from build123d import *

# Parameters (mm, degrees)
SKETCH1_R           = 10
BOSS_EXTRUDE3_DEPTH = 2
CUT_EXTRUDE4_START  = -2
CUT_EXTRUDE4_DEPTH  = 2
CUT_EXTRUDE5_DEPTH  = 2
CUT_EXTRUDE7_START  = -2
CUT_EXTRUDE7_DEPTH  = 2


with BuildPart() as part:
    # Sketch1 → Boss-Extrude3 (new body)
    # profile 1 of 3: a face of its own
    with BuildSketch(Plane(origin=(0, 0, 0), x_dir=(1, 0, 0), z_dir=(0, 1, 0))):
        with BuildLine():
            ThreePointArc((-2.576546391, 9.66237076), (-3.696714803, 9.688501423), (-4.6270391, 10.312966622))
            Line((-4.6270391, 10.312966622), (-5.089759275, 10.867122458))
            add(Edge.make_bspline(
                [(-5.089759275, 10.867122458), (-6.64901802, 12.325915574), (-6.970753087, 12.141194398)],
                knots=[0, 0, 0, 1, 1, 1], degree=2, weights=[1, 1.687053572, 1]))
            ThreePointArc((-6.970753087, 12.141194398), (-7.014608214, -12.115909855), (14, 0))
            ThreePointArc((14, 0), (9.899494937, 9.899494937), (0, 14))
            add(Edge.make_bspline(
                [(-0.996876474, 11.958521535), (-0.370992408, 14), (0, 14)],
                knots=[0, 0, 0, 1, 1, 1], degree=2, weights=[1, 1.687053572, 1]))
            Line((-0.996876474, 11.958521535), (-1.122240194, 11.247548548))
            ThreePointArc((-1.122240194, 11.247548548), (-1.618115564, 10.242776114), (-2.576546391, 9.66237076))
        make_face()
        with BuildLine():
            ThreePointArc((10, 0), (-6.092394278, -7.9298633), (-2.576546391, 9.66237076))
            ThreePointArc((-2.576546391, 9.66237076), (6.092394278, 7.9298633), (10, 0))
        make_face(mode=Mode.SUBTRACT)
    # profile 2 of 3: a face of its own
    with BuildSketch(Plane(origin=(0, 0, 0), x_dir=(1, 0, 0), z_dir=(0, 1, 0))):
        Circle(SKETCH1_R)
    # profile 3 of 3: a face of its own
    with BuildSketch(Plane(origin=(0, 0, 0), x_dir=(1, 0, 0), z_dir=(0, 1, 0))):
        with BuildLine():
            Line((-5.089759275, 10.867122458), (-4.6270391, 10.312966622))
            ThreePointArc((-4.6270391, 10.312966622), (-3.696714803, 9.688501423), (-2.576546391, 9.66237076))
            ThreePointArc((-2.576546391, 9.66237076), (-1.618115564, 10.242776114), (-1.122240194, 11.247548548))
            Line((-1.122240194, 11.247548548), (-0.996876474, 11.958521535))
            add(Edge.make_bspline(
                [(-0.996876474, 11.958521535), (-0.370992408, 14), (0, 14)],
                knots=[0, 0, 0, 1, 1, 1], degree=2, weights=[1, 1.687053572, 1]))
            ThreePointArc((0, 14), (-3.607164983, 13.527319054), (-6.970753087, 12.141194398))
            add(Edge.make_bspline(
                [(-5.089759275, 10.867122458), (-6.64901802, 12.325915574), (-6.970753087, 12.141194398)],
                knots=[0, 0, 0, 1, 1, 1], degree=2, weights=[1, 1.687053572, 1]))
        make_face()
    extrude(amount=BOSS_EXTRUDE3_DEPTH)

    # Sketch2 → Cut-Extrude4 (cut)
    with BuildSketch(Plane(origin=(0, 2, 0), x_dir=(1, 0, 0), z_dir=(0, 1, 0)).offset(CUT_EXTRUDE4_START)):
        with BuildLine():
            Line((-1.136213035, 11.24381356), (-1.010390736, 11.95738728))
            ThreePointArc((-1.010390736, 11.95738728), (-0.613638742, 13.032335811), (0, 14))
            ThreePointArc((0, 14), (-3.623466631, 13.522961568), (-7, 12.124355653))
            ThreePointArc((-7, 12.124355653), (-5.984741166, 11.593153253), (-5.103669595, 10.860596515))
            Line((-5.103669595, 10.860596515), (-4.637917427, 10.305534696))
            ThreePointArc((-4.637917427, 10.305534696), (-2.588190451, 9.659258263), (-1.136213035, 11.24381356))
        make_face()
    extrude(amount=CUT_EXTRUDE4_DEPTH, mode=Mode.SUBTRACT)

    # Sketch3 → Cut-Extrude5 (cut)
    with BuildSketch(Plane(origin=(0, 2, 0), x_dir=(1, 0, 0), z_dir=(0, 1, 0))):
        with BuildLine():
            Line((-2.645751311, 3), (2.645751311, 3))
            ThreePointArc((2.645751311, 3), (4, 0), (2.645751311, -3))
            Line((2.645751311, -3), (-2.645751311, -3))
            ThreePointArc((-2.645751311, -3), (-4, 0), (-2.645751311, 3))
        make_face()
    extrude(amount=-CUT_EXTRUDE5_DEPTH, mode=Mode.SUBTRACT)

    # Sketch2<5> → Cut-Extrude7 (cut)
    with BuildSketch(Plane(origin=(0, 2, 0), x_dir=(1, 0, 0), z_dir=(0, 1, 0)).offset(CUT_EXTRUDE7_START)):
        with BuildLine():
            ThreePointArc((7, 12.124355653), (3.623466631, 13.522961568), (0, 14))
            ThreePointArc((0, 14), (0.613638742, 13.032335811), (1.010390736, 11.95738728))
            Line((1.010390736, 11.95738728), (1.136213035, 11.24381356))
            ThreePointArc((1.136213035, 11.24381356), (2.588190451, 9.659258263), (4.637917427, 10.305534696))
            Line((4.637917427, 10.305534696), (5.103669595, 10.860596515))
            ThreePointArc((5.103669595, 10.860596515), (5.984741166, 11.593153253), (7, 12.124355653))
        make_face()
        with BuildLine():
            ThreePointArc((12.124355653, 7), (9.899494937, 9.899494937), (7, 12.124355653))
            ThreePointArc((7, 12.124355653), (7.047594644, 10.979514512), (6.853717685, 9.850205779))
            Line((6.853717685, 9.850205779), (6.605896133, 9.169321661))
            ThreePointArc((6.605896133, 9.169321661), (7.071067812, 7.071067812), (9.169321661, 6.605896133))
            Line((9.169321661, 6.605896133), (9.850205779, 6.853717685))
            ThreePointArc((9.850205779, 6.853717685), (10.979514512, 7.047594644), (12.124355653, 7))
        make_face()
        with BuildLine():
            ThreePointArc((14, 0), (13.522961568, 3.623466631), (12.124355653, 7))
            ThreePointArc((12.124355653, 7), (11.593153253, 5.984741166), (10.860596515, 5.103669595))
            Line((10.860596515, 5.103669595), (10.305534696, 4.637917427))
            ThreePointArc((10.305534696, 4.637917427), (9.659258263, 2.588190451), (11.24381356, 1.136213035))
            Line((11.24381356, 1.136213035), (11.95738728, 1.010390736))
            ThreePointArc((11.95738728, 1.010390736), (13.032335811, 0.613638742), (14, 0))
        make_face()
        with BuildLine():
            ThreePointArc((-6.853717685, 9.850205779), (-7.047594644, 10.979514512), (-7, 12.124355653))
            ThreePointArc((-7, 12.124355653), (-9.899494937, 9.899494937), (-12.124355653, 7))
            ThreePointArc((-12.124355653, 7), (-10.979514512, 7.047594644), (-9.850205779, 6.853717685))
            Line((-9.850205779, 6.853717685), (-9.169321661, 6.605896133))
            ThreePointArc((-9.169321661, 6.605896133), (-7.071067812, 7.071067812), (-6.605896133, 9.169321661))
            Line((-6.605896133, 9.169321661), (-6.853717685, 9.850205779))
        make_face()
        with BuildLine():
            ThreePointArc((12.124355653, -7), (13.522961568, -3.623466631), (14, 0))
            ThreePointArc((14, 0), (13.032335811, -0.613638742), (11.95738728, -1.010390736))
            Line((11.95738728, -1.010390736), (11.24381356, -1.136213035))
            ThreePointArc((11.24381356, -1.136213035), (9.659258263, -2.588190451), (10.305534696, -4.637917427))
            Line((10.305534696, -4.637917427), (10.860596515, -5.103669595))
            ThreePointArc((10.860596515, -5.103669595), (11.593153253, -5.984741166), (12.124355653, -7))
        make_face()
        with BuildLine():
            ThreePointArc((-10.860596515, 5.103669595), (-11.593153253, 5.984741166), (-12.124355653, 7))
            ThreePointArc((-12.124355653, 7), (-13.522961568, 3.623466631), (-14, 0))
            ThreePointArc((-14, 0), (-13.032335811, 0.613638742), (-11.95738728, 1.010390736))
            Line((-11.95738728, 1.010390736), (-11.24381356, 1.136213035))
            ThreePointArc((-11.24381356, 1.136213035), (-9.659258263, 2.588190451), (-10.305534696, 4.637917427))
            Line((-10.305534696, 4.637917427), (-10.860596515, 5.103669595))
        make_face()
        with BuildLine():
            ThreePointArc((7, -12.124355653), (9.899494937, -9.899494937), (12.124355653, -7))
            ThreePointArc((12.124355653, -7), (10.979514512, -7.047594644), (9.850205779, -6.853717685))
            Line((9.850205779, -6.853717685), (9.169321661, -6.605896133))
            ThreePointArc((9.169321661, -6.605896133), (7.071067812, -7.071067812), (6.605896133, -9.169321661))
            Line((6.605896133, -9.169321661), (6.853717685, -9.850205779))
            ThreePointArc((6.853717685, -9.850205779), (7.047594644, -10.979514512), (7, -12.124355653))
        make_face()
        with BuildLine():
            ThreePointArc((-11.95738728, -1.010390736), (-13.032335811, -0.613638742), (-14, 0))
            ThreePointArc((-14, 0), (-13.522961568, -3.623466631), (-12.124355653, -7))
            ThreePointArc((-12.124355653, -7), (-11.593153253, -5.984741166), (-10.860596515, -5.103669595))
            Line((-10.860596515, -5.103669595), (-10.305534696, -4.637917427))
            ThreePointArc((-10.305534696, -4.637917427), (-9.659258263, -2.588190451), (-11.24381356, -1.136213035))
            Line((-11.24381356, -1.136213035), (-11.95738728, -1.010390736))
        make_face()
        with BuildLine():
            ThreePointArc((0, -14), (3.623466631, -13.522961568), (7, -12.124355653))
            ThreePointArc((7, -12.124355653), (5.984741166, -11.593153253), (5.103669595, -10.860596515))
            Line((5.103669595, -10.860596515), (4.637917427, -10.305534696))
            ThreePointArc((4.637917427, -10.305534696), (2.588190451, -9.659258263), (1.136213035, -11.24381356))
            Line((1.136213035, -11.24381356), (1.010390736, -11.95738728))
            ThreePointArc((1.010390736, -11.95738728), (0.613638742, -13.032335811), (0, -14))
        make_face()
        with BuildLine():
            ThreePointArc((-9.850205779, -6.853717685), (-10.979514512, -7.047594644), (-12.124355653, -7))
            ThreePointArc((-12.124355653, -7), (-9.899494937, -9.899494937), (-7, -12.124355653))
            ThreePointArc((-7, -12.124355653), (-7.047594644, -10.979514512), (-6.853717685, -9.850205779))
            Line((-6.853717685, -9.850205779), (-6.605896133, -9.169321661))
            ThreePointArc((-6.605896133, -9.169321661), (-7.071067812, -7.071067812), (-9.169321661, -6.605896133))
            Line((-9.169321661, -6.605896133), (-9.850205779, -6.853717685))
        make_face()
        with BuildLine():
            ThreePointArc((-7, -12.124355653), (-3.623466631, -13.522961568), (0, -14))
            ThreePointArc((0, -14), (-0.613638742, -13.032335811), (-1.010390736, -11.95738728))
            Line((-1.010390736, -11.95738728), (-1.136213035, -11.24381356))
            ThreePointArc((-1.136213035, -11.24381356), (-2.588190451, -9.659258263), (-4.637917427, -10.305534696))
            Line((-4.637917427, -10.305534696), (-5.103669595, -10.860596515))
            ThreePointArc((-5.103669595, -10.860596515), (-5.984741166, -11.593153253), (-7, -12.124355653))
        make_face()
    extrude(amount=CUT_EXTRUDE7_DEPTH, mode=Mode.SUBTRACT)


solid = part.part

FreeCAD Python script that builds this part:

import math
import FreeCAD as App
import Part
import Sketcher
from FreeCAD import Vector
Q = App.Units.Quantity

doc = App.newDocument("Part")
params = doc.addObject("Spreadsheet::Sheet", "Params")
for row, (alias, value) in enumerate([
    ("sketch1_radius", "14 mm"),
    ("pad1_length", "2 mm"),
    ("sketch2_radius", "14 mm"),
    ("sketch2_radius2", "2 mm"),
    ("pocket1_length", "2 mm"),
    ("sketch3_radius", "4 mm"),
    ("pocket2_length", "2 mm"),
    ("sketch4_radius", "14 mm"),
    ("sketch4_radius2", "2 mm"),
    ("pocket3_length", "2 mm"),
], start=1):
    params.set(f"A{row}", alias)
    params.set(f"B{row}", "=" + value)
    params.setAlias(f"B{row}", alias)

body = doc.addObject("PartDesign::Body", "Body")

# Sketch on XZ plane
sketch1 = doc.addObject("Sketcher::SketchObject", "Sketch")
body.addObject(sketch1)
sketch1.AttachmentSupport = (doc.XZ_Plane, [""])
sketch1.MapMode = "FlatFace"
sketch1.addGeometry(Part.ArcOfCircle(Part.Circle(Vector(0, 0, 0), Vector(0, 0, 1), 14), math.radians(-90), math.radians(0)), False)
sketch1.addGeometry(Part.ArcOfCircle(Part.Circle(Vector(0, 0, 0), Vector(0, 0, 1), 14), math.radians(-119.861885), math.radians(-90)), False)
sketch1.addGeometry(Part.ArcOfCircle(Part.Circle(Vector(0, 0, 0), Vector(0, 0, 1), 14), math.radians(0), math.radians(240.138115)), False)
sketch1.addConstraint(Sketcher.Constraint("Tangent", 0, 1, 1, 2))
sketch1.addConstraint(Sketcher.Constraint("Tangent", 1, 1, 2, 2))
sketch1.addConstraint(Sketcher.Constraint("Tangent", 2, 1, 0, 2))
sketch1.addConstraint(Sketcher.Constraint("Coincident", 0, 3, -1, 1))
sketch1.addConstraint(Sketcher.Constraint("PointOnObject", 0, 1, -2))
sketch1.addConstraint(Sketcher.Constraint("PointOnObject", 2, 1, -1))
sketch1.addConstraint(Sketcher.Constraint("Radius", 0, Q("14 mm")))
sketch1.addConstraint(Sketcher.Constraint("DistanceX", 1, 1, -1, 1, Q("6.970753 mm")))
sketch1.setExpression("Constraints[6]", "Params.sketch1_radius")
pad1 = doc.addObject("PartDesign::Pad", "Pad")
body.addObject(pad1)
pad1.Profile = sketch1
pad1.setExpression("Length", "Params.pad1_length")
pad1.Reversed = True

# Sketch on XZ plane
sketch2 = doc.addObject("Sketcher::SketchObject", "Sketch001")
body.addObject(sketch2)
sketch2.AttachmentSupport = (doc.XZ_Plane, [""])
sketch2.MapMode = "FlatFace"
sketch2.addGeometry(Part.LineSegment(Vector(-1.136213, -11.243814, 0), Vector(-1.010391, -11.957387, 0)), False)
sketch2.addGeometry(Part.ArcOfCircle(Part.Circle(Vector(4.249852, -10.626581, 0), Vector(0, 0, 1), 5.425974), math.radians(-165.802452), math.radians(-141.55839)), False)
sketch2.addGeometry(Part.ArcOfCircle(Part.Circle(Vector(0, 0, 0), Vector(0, 0, 1), 14), math.radians(-120), math.radians(-90)), False)
sketch2.addGeometry(Part.ArcOfCircle(Part.Circle(Vector(-8.99377, -7.077963, 0), Vector(0, 0, 1), 5.425974), math.radians(-68.44161), math.radians(-44.197548)), False)
sketch2.addGeometry(Part.LineSegment(Vector(-5.10367, -10.860597, 0), Vector(-4.637917, -10.305535, 0)), False)
sketch2.addGeometry(Part.ArcOfCircle(Part.Circle(Vector(-3.105829, -11.59111, 0), Vector(0, 0, 1), 2), math.radians(10), math.radians(140)), False)
sketch2.addConstraint(Sketcher.Constraint("Coincident", 0, 2, 1, 1))
sketch2.addConstraint(Sketcher.Constraint("Coincident", 1, 2, 2, 2))
sketch2.addConstraint(Sketcher.Constraint("Coincident", 2, 1, 3, 1))
sketch2.addConstraint(Sketcher.Constraint("Coincident", 3, 2, 4, 1))
sketch2.addConstraint(Sketcher.Constraint("Tangent", 4, 2, 5, 2))
sketch2.addConstraint(Sketcher.Constraint("Tangent", 5, 1, 0, 1))
sketch2.addConstraint(Sketcher.Constraint("Coincident", 2, 3, -1, 1))
sketch2.addConstraint(Sketcher.Constraint("Equal", 1, 3))
sketch2.addConstraint(Sketcher.Constraint("PointOnObject", 1, 2, -2))
sketch2.addConstraint(Sketcher.Constraint("Equal", 0, 4))
sketch2.addConstraint(Sketcher.Constraint("Radius", 2, Q("14 mm")))
sketch2.addConstraint(Sketcher.Constraint("Radius", 5, Q("2 mm")))
sketch2.addConstraint(Sketcher.Constraint("Angle", 0, Q("-80 deg")))
sketch2.addConstraint(Sketcher.Constraint("Angle", 4, Q("50 deg")))
sketch2.addConstraint(Sketcher.Constraint("DistanceX", 2, 1, -1, 1, Q("7 mm")))
sketch2.addConstraint(Sketcher.Constraint("Radius", 1, Q("5.425974 mm")))
sketch2.addConstraint(Sketcher.Constraint("DistanceX", 3, 3, 3, 2, Q("3.8901 mm")))
sketch2.addConstraint(Sketcher.Constraint("Distance", 0, Q("0.724582 mm")))
sketch2.addConstraint(Sketcher.Constraint("DistanceX", -1, 1, 1, 3, Q("4.249852 mm")))
sketch2.setExpression("Constraints[10]", "Params.sketch2_radius")
sketch2.setExpression("Constraints[11]", "Params.sketch2_radius2")
pocket1 = doc.addObject("PartDesign::Pocket", "Pocket")
body.addObject(pocket1)
pocket1.Profile = sketch2
pocket1.setExpression("Length", "Params.pocket1_length")

# Sketch on XZ plane
sketch3 = doc.addObject("Sketcher::SketchObject", "Sketch002")
body.addObject(sketch3)
sketch3.AttachmentSupport = (doc.XZ_Plane, [""])
sketch3.MapMode = "FlatFace"
sketch3.AttachmentOffset = App.Placement(Vector(0, 0, -2), App.Rotation())
sketch3.addGeometry(Part.LineSegment(Vector(2.645751, -3, 0), Vector(-2.645751, -3, 0)), False)
sketch3.addGeometry(Part.ArcOfCircle(Part.Circle(Vector(0, 0, 0), Vector(0, 0, 1), 4), math.radians(131.409622), math.radians(228.590378)), False)
sketch3.addGeometry(Part.LineSegment(Vector(-2.645751, 3, 0), Vector(2.645751, 3, 0)), False)
sketch3.addGeometry(Part.ArcOfCircle(Part.Circle(Vector(0, 0, 0), Vector(0, 0, 1), 4), math.radians(-48.590378), math.radians(48.590378)), False)
sketch3.addConstraint(Sketcher.Constraint("Coincident", 0, 2, 1, 2))
sketch3.addConstraint(Sketcher.Constraint("Coincident", 1, 1, 2, 1))
sketch3.addConstraint(Sketcher.Constraint("Coincident", 2, 2, 3, 2))
sketch3.addConstraint(Sketcher.Constraint("Coincident", 3, 1, 0, 1))
sketch3.addConstraint(Sketcher.Constraint("Horizontal", 0))
sketch3.addConstraint(Sketcher.Constraint("Horizontal", 2))
sketch3.addConstraint(Sketcher.Constraint("Coincident", 1, 3, -1, 1))
sketch3.addConstraint(Sketcher.Constraint("Coincident", 3, 3, -1, 1))
sketch3.addConstraint(Sketcher.Constraint("Equal", 1, 3))
sketch3.addConstraint(Sketcher.Constraint("Vertical", 0, 2, 1, 1))
sketch3.addConstraint(Sketcher.Constraint("Radius", 1, Q("4 mm")))
sketch3.addConstraint(Sketcher.Constraint("DistanceY", 0, 2, -1, 1, Q("3 mm")))
sketch3.setExpression("Constraints[10]", "Params.sketch3_radius")
pocket2 = doc.addObject("PartDesign::Pocket", "Pocket001")
body.addObject(pocket2)
pocket2.Profile = sketch3
pocket2.setExpression("Length", "Params.pocket2_length")
pocket2.Reversed = True

# Sketch on XZ plane
sketch4 = doc.addObject("Sketcher::SketchObject", "Sketch003")
body.addObject(sketch4)
sketch4.AttachmentSupport = (doc.XZ_Plane, [""])
sketch4.MapMode = "FlatFace"
sketch4.addGeometry(Part.ArcOfCircle(Part.Circle(Vector(0, 0, 0), Vector(0, 0, 1), 14), math.radians(-90), math.radians(-60)), False)
sketch4.addGeometry(Part.ArcOfCircle(Part.Circle(Vector(-4.249852, -10.626581, 0), Vector(0, 0, 1), 5.425974), math.radians(-38.44161), math.radians(-14.197548)), False)
sketch4.addGeometry(Part.LineSegment(Vector(1.010391, -11.957387, 0), Vector(1.136213, -11.243814, 0)), False)
sketch4.addGeometry(Part.ArcOfCircle(Part.Circle(Vector(3.105829, -11.59111, 0), Vector(0, 0, 1), 2), math.radians(40), math.radians(170)), False)
sketch4.addGeometry(Part.LineSegment(Vector(4.637917, -10.305535, 0), Vector(5.10367, -10.860597, 0)), False)
sketch4.addGeometry(Part.ArcOfCircle(Part.Circle(Vector(8.99377, -7.077963, 0), Vector(0, 0, 1), 5.425974), math.radians(-135.802452), math.radians(-111.55839)), False)
sketch4.addGeometry(Part.ArcOfCircle(Part.Circle(Vector(0, 0, 0), Vector(0, 0, 1), 14), math.radians(-60), math.radians(-30)), False)
sketch4.addGeometry(Part.ArcOfCircle(Part.Circle(Vector(1.632811, -11.327815, 0), Vector(0, 0, 1), 5.425974), math.radians(-8.44161), math.radians(15.802452)), False)
sketch4.addGeometry(Part.LineSegment(Vector(6.853718, -9.850206, 0), Vector(6.605896, -9.169322, 0)), False)
sketch4.addGeometry(Part.ArcOfCircle(Part.Circle(Vector(8.485281, -8.485281, 0), Vector(0, 0, 1), 2), math.radians(70), math.radians(200)), False)
sketch4.addGeometry(Part.LineSegment(Vector(9.169322, -6.605896, 0), Vector(9.850206, -6.853718, 0)), False)
sketch4.addGeometry(Part.ArcOfCircle(Part.Circle(Vector(11.327815, -1.632811, 0), Vector(0, 0, 1), 5.425974), math.radians(-105.802452), math.radians(-81.55839)), False)
sketch4.addGeometry(Part.ArcOfCircle(Part.Circle(Vector(0, 0, 0), Vector(0, 0, 1), 14), math.radians(-30), math.radians(0)), False)
sketch4.addGeometry(Part.ArcOfCircle(Part.Circle(Vector(7.077963, -8.99377, 0), Vector(0, 0, 1), 5.425974), math.radians(21.55839), math.radians(45.802452)), False)
sketch4.addGeometry(Part.LineSegment(Vector(10.860597, -5.10367, 0), Vector(10.305535, -4.637917, 0)), False)
sketch4.addGeometry(Part.ArcOfCircle(Part.Circle(Vector(11.59111, -3.105829, 0), Vector(0, 0, 1), 2), math.radians(100), math.radians(230)), False)
sketch4.addGeometry(Part.LineSegment(Vector(11.243814, -1.136213, 0), Vector(11.957387, -1.010391, 0)), False)
sketch4.addGeometry(Part.ArcOfCircle(Part.Circle(Vector(10.626581, 4.249852, 0), Vector(0, 0, 1), 5.425974), math.radians(-75.802452), math.radians(-51.55839)), False)
sketch4.addGeometry(Part.ArcOfCircle(Part.Circle(Vector(-1.632811, -11.327815, 0), Vector(0, 0, 1), 5.425974), math.radians(164.197548), math.radians(188.44161)), False)
sketch4.addGeometry(Part.ArcOfCircle(Part.Circle(Vector(0, 0, 0), Vector(0, 0, 1), 14), math.radians(-150), math.radians(-120)), False)
sketch4.addGeometry(Part.ArcOfCircle(Part.Circle(Vector(-11.327815, -1.632811, 0), Vector(0, 0, 1), 5.425974), math.radians(-98.44161), math.radians(-74.197548)), False)
sketch4.addGeometry(Part.LineSegment(Vector(-9.850206, -6.853718, 0), Vector(-9.169322, -6.605896, 0)), False)
sketch4.addGeometry(Part.ArcOfCircle(Part.Circle(Vector(-8.485281, -8.485281, 0), Vector(0, 0, 1), 2), math.radians(-20), math.radians(110)), False)
sketch4.addGeometry(Part.LineSegment(Vector(-6.605896, -9.169322, 0), Vector(-6.853718, -9.850206, 0)), False)
sketch4.addGeometry(Part.ArcOfCircle(Part.Circle(Vector(0, 0, 0), Vector(0, 0, 1), 14), math.radians(0), math.radians(30)), False)
sketch4.addGeometry(Part.ArcOfCircle(Part.Circle(Vector(10.626581, -4.249852, 0), Vector(0, 0, 1), 5.425974), math.radians(51.55839), math.radians(75.802452)), False)
sketch4.addGeometry(Part.LineSegment(Vector(11.957387, 1.010391, 0), Vector(11.243814, 1.136213, 0)), False)
sketch4.addGeometry(Part.ArcOfCircle(Part.Circle(Vector(11.59111, 3.105829, 0), Vector(0, 0, 1), 2), math.radians(130), math.radians(260)), False)
sketch4.addGeometry(Part.LineSegment(Vector(10.305535, 4.637917, 0), Vector(10.860597, 5.10367, 0)), False)
sketch4.addGeometry(Part.ArcOfCircle(Part.Circle(Vector(7.077963, 8.99377, 0), Vector(0, 0, 1), 5.425974), math.radians(-45.802452), math.radians(-21.55839)), False)
sketch4.addGeometry(Part.ArcOfCircle(Part.Circle(Vector(-7.077963, -8.99377, 0), Vector(0, 0, 1), 5.425974), math.radians(134.197548), math.radians(158.44161)), False)
sketch4.addGeometry(Part.ArcOfCircle(Part.Circle(Vector(0, 0, 0), Vector(0, 0, 1), 14), math.radians(-180), math.radians(-150)), False)
sketch4.addGeometry(Part.ArcOfCircle(Part.Circle(Vector(-10.626581, 4.249852, 0), Vector(0, 0, 1), 5.425974), math.radians(-128.44161), math.radians(-104.197548)), False)
sketch4.addGeometry(Part.LineSegment(Vector(-11.957387, -1.010391, 0), Vector(-11.243814, -1.136213, 0)), False)
sketch4.addGeometry(Part.ArcOfCircle(Part.Circle(Vector(-11.59111, -3.105829, 0), Vector(0, 0, 1), 2), math.radians(-50), math.radians(80)), False)
sketch4.addGeometry(Part.LineSegment(Vector(-10.305535, -4.637917, 0), Vector(-10.860597, -5.10367, 0)), False)
sketch4.addGeometry(Part.ArcOfCircle(Part.Circle(Vector(0, 0, 0), Vector(0, 0, 1), 14), math.radians(30), math.radians(60)), False)
sketch4.addGeometry(Part.ArcOfCircle(Part.Circle(Vector(11.327815, 1.632811, 0), Vector(0, 0, 1), 5.425974), math.radians(81.55839), math.radians(105.802452)), False)
sketch4.addGeometry(Part.LineSegment(Vector(9.850206, 6.853718, 0), Vector(9.169322, 6.605896, 0)), False)
sketch4.addGeometry(Part.ArcOfCircle(Part.Circle(Vector(8.485281, 8.485281, 0), Vector(0, 0, 1), 2), math.radians(160), math.radians(290)), False)
sketch4.addGeometry(Part.LineSegment(Vector(6.605896, 9.169322, 0), Vector(6.853718, 9.850206, 0)), False)
sketch4.addGeometry(Part.ArcOfCircle(Part.Circle(Vector(1.632811, 11.327815, 0), Vector(0, 0, 1), 5.425974), math.radians(-15.802452), math.radians(8.44161)), False)
sketch4.addGeometry(Part.ArcOfCircle(Part.Circle(Vector(-10.626581, -4.249852, 0), Vector(0, 0, 1), 5.425974), math.radians(104.197548), math.radians(128.44161)), False)
sketch4.addGeometry(Part.ArcOfCircle(Part.Circle(Vector(0, 0, 0), Vector(0, 0, 1), 14), math.radians(150), math.radians(180)), False)
sketch4.addGeometry(Part.ArcOfCircle(Part.Circle(Vector(-7.077963, 8.99377, 0), Vector(0, 0, 1), 5.425974), math.radians(-158.44161), math.radians(-134.197548)), False)
sketch4.addGeometry(Part.LineSegment(Vector(-10.860597, 5.10367, 0), Vector(-10.305535, 4.637917, 0)), False)
sketch4.addGeometry(Part.ArcOfCircle(Part.Circle(Vector(-11.59111, 3.105829, 0), Vector(0, 0, 1), 2), math.radians(-80), math.radians(50)), False)
sketch4.addGeometry(Part.LineSegment(Vector(-11.243814, 1.136213, 0), Vector(-11.957387, 1.010391, 0)), False)
sketch4.addGeometry(Part.ArcOfCircle(Part.Circle(Vector(0, 0, 0), Vector(0, 0, 1), 14), math.radians(60), math.radians(90)), False)
sketch4.addGeometry(Part.ArcOfCircle(Part.Circle(Vector(8.99377, 7.077963, 0), Vector(0, 0, 1), 5.425974), math.radians(111.55839), math.radians(135.802452)), False)
sketch4.addGeometry(Part.LineSegment(Vector(5.10367, 10.860597, 0), Vector(4.637917, 10.305535, 0)), False)
sketch4.addGeometry(Part.ArcOfCircle(Part.Circle(Vector(3.105829, 11.59111, 0), Vector(0, 0, 1), 2), math.radians(-170), math.radians(-40)), False)
sketch4.addGeometry(Part.LineSegment(Vector(1.136213, 11.243814, 0), Vector(1.010391, 11.957387, 0)), False)
sketch4.addGeometry(Part.ArcOfCircle(Part.Circle(Vector(-4.249852, 10.626581, 0), Vector(0, 0, 1), 5.425974), math.radians(14.197548), math.radians(38.44161)), False)
sketch4.addGeometry(Part.ArcOfCircle(Part.Circle(Vector(-11.327815, 1.632811, 0), Vector(0, 0, 1), 5.425974), math.radians(74.197548), math.radians(98.44161)), False)
sketch4.addGeometry(Part.ArcOfCircle(Part.Circle(Vector(0, 0, 0), Vector(0, 0, 1), 14), math.radians(120), math.radians(150)), False)
sketch4.addGeometry(Part.ArcOfCircle(Part.Circle(Vector(-1.632811, 11.327815, 0), Vector(0, 0, 1), 5.425974), math.radians(171.55839), math.radians(195.802452)), False)
sketch4.addGeometry(Part.LineSegment(Vector(-6.853718, 9.850206, 0), Vector(-6.605896, 9.169322, 0)), False)
sketch4.addGeometry(Part.ArcOfCircle(Part.Circle(Vector(-8.485281, 8.485281, 0), Vector(0, 0, 1), 2), math.radians(-110), math.radians(20)), False)
sketch4.addGeometry(Part.LineSegment(Vector(-9.169322, 6.605896, 0), Vector(-9.850206, 6.853718, 0)), False)
sketch4.addGeometry(Part.ArcOfCircle(Part.Circle(Vector(0, 0, 0), Vector(0, 0, 1), 14), math.radians(90), math.radians(120)), False)
sketch4.addGeometry(Part.ArcOfCircle(Part.Circle(Vector(4.249852, 10.626581, 0), Vector(0, 0, 1), 5.425974), math.radians(141.55839), math.radians(165.802452)), False)
sketch4.addGeometry(Part.LineSegment(Vector(-1.010391, 11.957387, 0), Vector(-1.136213, 11.243814, 0)), False)
sketch4.addGeometry(Part.ArcOfCircle(Part.Circle(Vector(-3.105829, 11.59111, 0), Vector(0, 0, 1), 2), math.radians(-140), math.radians(-10)), False)
sketch4.addGeometry(Part.LineSegment(Vector(-4.637917, 10.305535, 0), Vector(-5.10367, 10.860597, 0)), False)
sketch4.addGeometry(Part.ArcOfCircle(Part.Circle(Vector(-8.99377, 7.077963, 0), Vector(0, 0, 1), 5.425974), math.radians(44.197548), math.radians(68.44161)), False)
sketch4.addConstraint(Sketcher.Constraint("Coincident", 0, 1, 1, 1))
sketch4.addConstraint(Sketcher.Constraint("Coincident", 1, 2, 2, 1))
sketch4.addConstraint(Sketcher.Constraint("Tangent", 2, 2, 3, 2))
sketch4.addConstraint(Sketcher.Constraint("Tangent", 3, 1, 4, 1))
sketch4.addConstraint(Sketcher.Constraint("Coincident", 4, 2, 5, 1))
sketch4.addConstraint(Sketcher.Constraint("Coincident", 5, 2, 0, 2))
sketch4.addConstraint(Sketcher.Constraint("Coincident", 6, 1, 7, 1))
sketch4.addConstraint(Sketcher.Constraint("Coincident", 7, 2, 8, 1))
sketch4.addConstraint(Sketcher.Constraint("Tangent", 8, 2, 9, 2))
sketch4.addConstraint(Sketcher.Constraint("Tangent", 9, 1, 10, 1))
sketch4.addConstraint(Sketcher.Constraint("Coincident", 10, 2, 11, 1))
sketch4.addConstraint(Sketcher.Constraint("Coincident", 11, 2, 6, 2))
sketch4.addConstraint(Sketcher.Constraint("Coincident", 12, 1, 13, 1))
sketch4.addConstraint(Sketcher.Constraint("Coincident", 13, 2, 14, 1))
sketch4.addConstraint(Sketcher.Constraint("Tangent", 14, 2, 15, 2))
sketch4.addConstraint(Sketcher.Constraint("Tangent", 15, 1, 16, 1))
sketch4.addConstraint(Sketcher.Constraint("Coincident", 16, 2, 17, 1))
sketch4.addConstraint(Sketcher.Constraint("Coincident", 17, 2, 12, 2))
sketch4.addConstraint(Sketcher.Constraint("Coincident", 18, 2, 19, 2))
sketch4.addConstraint(Sketcher.Constraint("Coincident", 19, 1, 20, 1))
sketch4.addConstraint(Sketcher.Constraint("Coincident", 20, 2, 21, 1))
sketch4.addConstraint(Sketcher.Constraint("Tangent", 21, 2, 22, 2))
sketch4.addConstraint(Sketcher.Constraint("Tangent", 22, 1, 23, 1))
sketch4.addConstraint(Sketcher.Constraint("Coincident", 23, 2, 18, 1))
sketch4.addConstraint(Sketcher.Constraint("Coincident", 24, 1, 25, 1))
sketch4.addConstraint(Sketcher.Constraint("Coincident", 25, 2, 26, 1))
sketch4.addConstraint(Sketcher.Constraint("Tangent", 26, 2, 27, 2))
sketch4.addConstraint(Sketcher.Constraint("Tangent", 27, 1, 28, 1))
sketch4.addConstraint(Sketcher.Constraint("Coincident", 28, 2, 29, 1))
sketch4.addConstraint(Sketcher.Constraint("Coincident", 29, 2, 24, 2))
sketch4.addConstraint(Sketcher.Constraint("Coincident", 30, 2, 31, 2))
sketch4.addConstraint(Sketcher.Constraint("Coincident", 31, 1, 32, 1))
sketch4.addConstraint(Sketcher.Constraint("Coincident", 32, 2, 33, 1))
sketch4.addConstraint(Sketcher.Constraint("Tangent", 33, 2, 34, 2))
sketch4.addConstraint(Sketcher.Constraint("Tangent", 34, 1, 35, 1))
sketch4.addConstraint(Sketcher.Constraint("Coincident", 35, 2, 30, 1))
sketch4.addConstraint(Sketcher.Constraint("Coincident", 36, 1, 37, 1))
sketch4.addConstraint(Sketcher.Constraint("Coincident", 37, 2, 38, 1))
sketch4.addConstraint(Sketcher.Constraint("Tangent", 38, 2, 39, 2))
sketch4.addConstraint(Sketcher.Constraint("Tangent", 39, 1, 40, 1))
sketch4.addConstraint(Sketcher.Constraint("Coincident", 40, 2, 41, 1))
sketch4.addConstraint(Sketcher.Constraint("Coincident", 41, 2, 36, 2))
sketch4.addConstraint(Sketcher.Constraint("Coincident", 42, 2, 43, 2))
sketch4.addConstraint(Sketcher.Constraint("Coincident", 43, 1, 44, 1))
sketch4.addConstraint(Sketcher.Constraint("Coincident", 44, 2, 45, 1))
sketch4.addConstraint(Sketcher.Constraint("Tangent", 45, 2, 46, 2))
sketch4.addConstraint(Sketcher.Constraint("Tangent", 46, 1, 47, 1))
sketch4.addConstraint(Sketcher.Constraint("Coincident", 47, 2, 42, 1))
sketch4.addConstraint(Sketcher.Constraint("Coincident", 48, 1, 49, 1))
sketch4.addConstraint(Sketcher.Constraint("Coincident", 49, 2, 50, 1))
sketch4.addConstraint(Sketcher.Constraint("Tangent", 50, 2, 51, 2))
sketch4.addConstraint(Sketcher.Constraint("Tangent", 51, 1, 52, 1))
sketch4.addConstraint(Sketcher.Constraint("Coincident", 52, 2, 53, 1))
sketch4.addConstraint(Sketcher.Constraint("Coincident", 53, 2, 48, 2))
sketch4.addConstraint(Sketcher.Constraint("Coincident", 54, 2, 55, 2))
sketch4.addConstraint(Sketcher.Constraint("Coincident", 55, 1, 56, 1))
sketch4.addConstraint(Sketcher.Constraint("Coincident", 56, 2, 57, 1))
sketch4.addConstraint(Sketcher.Constraint("Tangent", 57, 2, 58, 2))
sketch4.addConstraint(Sketcher.Constraint("Tangent", 58, 1, 59, 1))
sketch4.addConstraint(Sketcher.Constraint("Coincident", 59, 2, 54, 1))
sketch4.addConstraint(Sketcher.Constraint("Coincident", 60, 1, 61, 1))
sketch4.addConstraint(Sketcher.Constraint("Coincident", 61, 2, 62, 1))
sketch4.addConstraint(Sketcher.Constraint("Tangent", 62, 2, 63, 2))
sketch4.addConstraint(Sketcher.Constraint("Tangent", 63, 1, 64, 1))
sketch4.addConstraint(Sketcher.Constraint("Coincident", 64, 2, 65, 1))
sketch4.addConstraint(Sketcher.Constraint("Coincident", 65, 2, 60, 2))
sketch4.addConstraint(Sketcher.Constraint("Coincident", 0, 3, -1, 1))
sketch4.addConstraint(Sketcher.Constraint("Coincident", 6, 3, -1, 1))
sketch4.addConstraint(Sketcher.Constraint("Coincident", 12, 3, -1, 1))
sketch4.addConstraint(Sketcher.Constraint("Coincident", 19, 3, -1, 1))
sketch4.addConstraint(Sketcher.Constraint("Coincident", 24, 3, -1, 1))
sketch4.addConstraint(Sketcher.Constraint("Coincident", 31, 3, -1, 1))
sketch4.addConstraint(Sketcher.Constraint("Coincident", 36, 3, -1, 1))
sketch4.addConstraint(Sketcher.Constraint("Coincident", 43, 3, -1, 1))
sketch4.addConstraint(Sketcher.Constraint("Coincident", 48, 3, -1, 1))
sketch4.addConstraint(Sketcher.Constraint("Coincident", 55, 3, -1, 1))
sketch4.addConstraint(Sketcher.Constraint("Coincident", 60, 3, -1, 1))
sketch4.addConstraint(Sketcher.Constraint("Coincident", 6, 1, 5, 2))
sketch4.addConstraint(Sketcher.Constraint("Coincident", 12, 1, 11, 2))
sketch4.addConstraint(Sketcher.Constraint("Coincident", 24, 1, 17, 2))
sketch4.addConstraint(Sketcher.Constraint("Coincident", 30, 2, 19, 1))
sketch4.addConstraint(Sketcher.Constraint("Coincident", 36, 1, 29, 2))
sketch4.addConstraint(Sketcher.Constraint("Coincident", 42, 2, 31, 1))
sketch4.addConstraint(Sketcher.Constraint("Coincident", 48, 1, 41, 2))
sketch4.addConstraint(Sketcher.Constraint("Coincident", 54, 2, 43, 1))
sketch4.addConstraint(Sketcher.Constraint("Coincident", 60, 1, 53, 2))
sketch4.addConstraint(Sketcher.Constraint("Coincident", 65, 2, 55, 1))
sketch4.addConstraint(Sketcher.Constraint("Equal", 1, 5))
sketch4.addConstraint(Sketcher.Constraint("Equal", 5, 7))
sketch4.addConstraint(Sketcher.Constraint("Equal", 3, 9))
sketch4.addConstraint(Sketcher.Constraint("Equal", 7, 11))
sketch4.addConstraint(Sketcher.Constraint("Equal", 11, 13))
sketch4.addConstraint(Sketcher.Constraint("Equal", 9, 15))
sketch4.addConstraint(Sketcher.Constraint("Equal", 13, 17))
sketch4.addConstraint(Sketcher.Constraint("Equal", 17, 18))
sketch4.addConstraint(Sketcher.Constraint("Equal", 18, 20))
sketch4.addConstraint(Sketcher.Constraint("Equal", 15, 22))
sketch4.addConstraint(Sketcher.Constraint("Equal", 20, 25))
sketch4.addConstraint(Sketcher.Constraint("Equal", 22, 27))
sketch4.addConstraint(Sketcher.Constraint("Equal", 25, 29))
sketch4.addConstraint(Sketcher.Constraint("Equal", 29, 30))
sketch4.addConstraint(Sketcher.Constraint("Equal", 30, 32))
sketch4.addConstraint(Sketcher.Constraint("Equal", 27, 34))
sketch4.addConstraint(Sketcher.Constraint("Equal", 32, 37))
sketch4.addConstraint(Sketcher.Constraint("Equal", 34, 39))
sketch4.addConstraint(Sketcher.Constraint("Equal", 37, 41))
sketch4.addConstraint(Sketcher.Constraint("Equal", 41, 42))
sketch4.addConstraint(Sketcher.Constraint("Equal", 42, 44))
sketch4.addConstraint(Sketcher.Constraint("Equal", 39, 46))
sketch4.addConstraint(Sketcher.Constraint("Equal", 44, 49))
sketch4.addConstraint(Sketcher.Constraint("Equal", 46, 51))
sketch4.addConstraint(Sketcher.Constraint("Equal", 49, 53))
sketch4.addConstraint(Sketcher.Constraint("Equal", 53, 54))
sketch4.addConstraint(Sketcher.Constraint("Equal", 54, 56))
sketch4.addConstraint(Sketcher.Constraint("Equal", 51, 58))
sketch4.addConstraint(Sketcher.Constraint("Equal", 56, 61))
sketch4.addConstraint(Sketcher.Constraint("Equal", 58, 63))
sketch4.addConstraint(Sketcher.Constraint("Equal", 61, 65))
sketch4.addConstraint(Sketcher.Constraint("Symmetric", 29, 3, 30, 3, -1, 1))
sketch4.addConstraint(Sketcher.Constraint("Symmetric", 25, 3, 32, 3, -1, 1))
sketch4.addConstraint(Sketcher.Constraint("Symmetric", 27, 3, 34, 3, -1, 1))
sketch4.addConstraint(Sketcher.Constraint("Symmetric", 22, 3, 39, 3, -1, 1))
sketch4.addConstraint(Sketcher.Constraint("Symmetric", 18, 3, 41, 3, -1, 1))
sketch4.addConstraint(Sketcher.Constraint("Symmetric", 13, 3, 44, 3, -1, 1))
sketch4.addConstraint(Sketcher.Constraint("Symmetric", 15, 3, 46, 3, -1, 1))
sketch4.addConstraint(Sketcher.Constraint("Symmetric", 7, 3, 56, 3, -1, 1))
sketch4.addConstraint(Sketcher.Constraint("Symmetric", 9, 3, 58, 3, -1, 1))
sketch4.addConstraint(Sketcher.Constraint("Symmetric", 1, 3, 61, 3, -1, 1))
sketch4.addConstraint(Sketcher.Constraint("Symmetric", 3, 3, 63, 3, -1, 1))
sketch4.addConstraint(Sketcher.Constraint("Symmetric", 20, 2, 37, 2, -1, 1))
sketch4.addConstraint(Sketcher.Constraint("Symmetric", 16, 2, 47, 2, -1, 1))
sketch4.addConstraint(Sketcher.Constraint("Symmetric", 10, 2, 59, 2, -1, 1))
sketch4.addConstraint(Sketcher.Constraint("Symmetric", 4, 2, 64, 2, -1, 1))
sketch4.addConstraint(Sketcher.Constraint("Symmetric", 7, 3, 18, 3, -2))
sketch4.addConstraint(Sketcher.Constraint("Symmetric", 11, 3, 20, 3, -2))
sketch4.addConstraint(Sketcher.Constraint("Symmetric", 9, 3, 22, 3, -2))
sketch4.addConstraint(Sketcher.Constraint("Symmetric", 17, 3, 32, 3, -2))
sketch4.addConstraint(Sketcher.Constraint("Symmetric", 15, 3, 34, 3, -2))
sketch4.addConstraint(Sketcher.Constraint("Symmetric", 53, 3, 61, 3, -2))
sketch4.addConstraint(Sketcher.Constraint("Symmetric", 51, 3, 63, 3, -2))
sketch4.addConstraint(Sketcher.Constraint("Symmetric", 13, 2, 35, 2, -2))
sketch4.addConstraint(Sketcher.Constraint("Symmetric", 49, 2, 64, 2, -2))
sketch4.addConstraint(Sketcher.Constraint("Perpendicular", 8, 21))
sketch4.addConstraint(Sketcher.Constraint("Perpendicular", 10, 23))
sketch4.addConstraint(Sketcher.Constraint("Perpendicular", 2, 26))
sketch4.addConstraint(Sketcher.Constraint("Perpendicular", 4, 28))
sketch4.addConstraint(Sketcher.Constraint("Parallel", 26, 33))
sketch4.addConstraint(Sketcher.Constraint("Parallel", 28, 35))
sketch4.addConstraint(Sketcher.Constraint("Parallel", 23, 40))
sketch4.addConstraint(Sketcher.Constraint("Parallel", 14, 45))
sketch4.addConstraint(Sketcher.Constraint("Perpendicular", 47, 52))
sketch4.addConstraint(Sketcher.Constraint("Perpendicular", 38, 57))
sketch4.addConstraint(Sketcher.Constraint("Perpendicular", 33, 62))
sketch4.addConstraint(Sketcher.Constraint("Horizontal", 10, 2, 20, 2))
sketch4.addConstraint(Sketcher.Constraint("Horizontal", 16, 2, 32, 2))
sketch4.addConstraint(Sketcher.Constraint("Equal", 2, 4))
sketch4.addConstraint(Sketcher.Constraint("Equal", 4, 8))
sketch4.addConstraint(Sketcher.Constraint("Equal", 8, 10))
sketch4.addConstraint(Sketcher.Constraint("Equal", 10, 14))
sketch4.addConstraint(Sketcher.Constraint("Equal", 14, 16))
sketch4.addConstraint(Sketcher.Constraint("Radius", 0, Q("14 mm")))
sketch4.addConstraint(Sketcher.Constraint("Radius", 3, Q("2 mm")))
sketch4.addConstraint(Sketcher.Constraint("Angle", 2, Q("80 deg")))
sketch4.addConstraint(Sketcher.Constraint("Angle", 4, Q("-50 deg")))
sketch4.addConstraint(Sketcher.Constraint("Angle", 8, Q("110 deg")))
sketch4.addConstraint(Sketcher.Constraint("DistanceX", -1, 1, 5, 2, Q("7 mm")))
sketch4.addConstraint(Sketcher.Constraint("DistanceY", 11, 2, -1, 1, Q("7 mm")))
sketch4.addConstraint(Sketcher.Constraint("Radius", 1, Q("5.425974 mm")))
sketch4.addConstraint(Sketcher.Constraint("Distance", 2, Q("0.724582 mm")))
sketch4.addConstraint(Sketcher.Constraint("DistanceX", 1, 3, -1, 1, Q("4.249852 mm")))
sketch4.addConstraint(Sketcher.Constraint("DistanceX", -1, 1, 3, 3, Q("3.105829 mm")))
sketch4.addConstraint(Sketcher.Constraint("DistanceX", -1, 1, 7, 3, Q("1.632811 mm")))
sketch4.addConstraint(Sketcher.Constraint("DistanceX", -1, 1, 9, 3, Q("8.485281 mm")))
sketch4.addConstraint(Sketcher.Constraint("DistanceY", 13, 3, -1, 1, Q("8.99377 mm")))
sketch4.addConstraint(Sketcher.Constraint("DistanceX", -1, 1, 15, 3, Q("11.59111 mm")))
sketch4.setExpression("Constraints[160]", "Params.sketch4_radius")
sketch4.setExpression("Constraints[161]", "Params.sketch4_radius2")
pocket3 = doc.addObject("PartDesign::Pocket", "Pocket002")
body.addObject(pocket3)
pocket3.Profile = sketch4
pocket3.setExpression("Length", "Params.pocket3_length")

doc.recompute()
